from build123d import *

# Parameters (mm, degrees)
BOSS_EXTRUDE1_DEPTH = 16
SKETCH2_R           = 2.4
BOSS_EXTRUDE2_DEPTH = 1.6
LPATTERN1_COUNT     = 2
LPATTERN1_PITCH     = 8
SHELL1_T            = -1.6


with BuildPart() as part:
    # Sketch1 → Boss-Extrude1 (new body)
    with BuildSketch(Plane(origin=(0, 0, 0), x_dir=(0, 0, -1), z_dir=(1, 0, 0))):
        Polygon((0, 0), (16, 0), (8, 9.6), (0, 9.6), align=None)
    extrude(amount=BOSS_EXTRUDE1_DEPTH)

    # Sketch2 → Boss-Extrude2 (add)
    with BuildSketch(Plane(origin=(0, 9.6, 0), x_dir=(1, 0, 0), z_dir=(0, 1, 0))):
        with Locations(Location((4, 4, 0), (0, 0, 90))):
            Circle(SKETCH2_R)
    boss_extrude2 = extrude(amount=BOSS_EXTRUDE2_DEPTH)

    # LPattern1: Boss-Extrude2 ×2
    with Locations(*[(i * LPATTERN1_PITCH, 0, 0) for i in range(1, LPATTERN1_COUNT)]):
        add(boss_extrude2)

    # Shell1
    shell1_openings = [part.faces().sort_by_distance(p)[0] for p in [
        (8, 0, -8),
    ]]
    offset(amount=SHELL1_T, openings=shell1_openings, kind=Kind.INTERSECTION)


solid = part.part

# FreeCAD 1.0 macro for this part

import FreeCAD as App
import Part
import Sketcher
from FreeCAD import Vector
Q = App.Units.Quantity


def faces_at(feature, points):
    """Names of the faces that lie closest to the given points."""
    faces = feature.Shape.Faces
    near = lambda p: min(range(len(faces)), key=lambda i: faces[i].distToShape(Part.Vertex(*p))[0])
    return sorted({f"Face{near(p) + 1}" for p in points})

doc = App.newDocument("Part")
params = doc.addObject("Spreadsheet::Sheet", "Params")
for row, (alias, value) in enumerate([
    ("sketch1_height", "16 mm"),
    ("sketch1_height2", "8 mm"),
    ("sketch1_width", "9.6 mm"),
    ("pad1_length", "16 mm"),
    ("sketch2_diameter", "4.8 mm"),
    ("pad2_length", "1.6 mm"),
    ("linearpattern_pitch", "8 mm"),
    ("thickness_wall", "1.6 mm"),
], start=1):
    params.set(f"A{row}", alias)
    params.set(f"B{row}", "=" + value)
    params.setAlias(f"B{row}", alias)

body = doc.addObject("PartDesign::Body", "Body")

# Sketch on YZ plane
sketch1 = body.newObject("Sketcher::SketchObject", "Sketch")
sketch1.AttachmentSupport = (doc.getObject("YZ_Plane"), [""])
sketch1.MapMode = "FlatFace"
sketch1.addGeometry(Part.LineSegment(Vector(0, 0, 0), Vector(0, -16, 0)), False)
sketch1.addGeometry(Part.LineSegment(Vector(0, -16, 0), Vector(9.6, -8, 0)), False)
sketch1.addGeometry(Part.LineSegment(Vector(9.6, -8, 0), Vector(9.6, 0, 0)), False)
sketch1.addGeometry(Part.LineSegment(Vector(9.6, 0, 0), Vector(0, 0, 0)), False)
sketch1.addConstraint(Sketcher.Constraint("Coincident", 0, 2, 1, 1))
sketch1.addConstraint(Sketcher.Constraint("Coincident", 1, 2, 2, 1))
sketch1.addConstraint(Sketcher.Constraint("Coincident", 2, 2, 3, 1))
sketch1.addConstraint(Sketcher.Constraint("Coincident", 3, 2, 0, 1))
sketch1.addConstraint(Sketcher.Constraint("Vertical", 0))
sketch1.addConstraint(Sketcher.Constraint("Vertical", 2))
sketch1.addConstraint(Sketcher.Constraint("Horizontal", 3))
sketch1.addConstraint(Sketcher.Constraint("Coincident", 3, 2, -1, 1))
sketch1.addConstraint(Sketcher.Constraint("DistanceY", 0, 2, 0, 1, Q("16 mm")))
sketch1.addConstraint(Sketcher.Constraint("DistanceY", 2, 1, 2, 2, Q("8 mm")))
sketch1.addConstraint(Sketcher.Constraint("DistanceX", 3, 2, 3, 1, Q("9.6 mm")))
sketch1.setExpression("Constraints[8]", "Params.sketch1_height")
sketch1.setExpression("Constraints[9]", "Params.sketch1_height2")
sketch1.setExpression("Constraints[10]", "Params.sketch1_width")
pad1 = body.newObject("PartDesign::Pad", "Pad")
pad1.Profile = sketch1
pad1.setExpression("Length", "Params.pad1_length")

# Sketch on XZ plane
sketch2 = body.newObject("Sketcher::SketchObject", "Sketch001")
sketch2.AttachmentSupport = (doc.getObject("XZ_Plane"), [""])
sketch2.MapMode = "FlatFace"
sketch2.AttachmentOffset = App.Placement(Vector(0, 0, -9.6), App.Rotation())
sketch2.addGeometry(Part.Circle(Vector(4, -4, 0), Vector(0, 0, 1), 2.4), False)
sketch2.addConstraint(Sketcher.Constraint("Diameter", 0, Q("4.8 mm")))
sketch2.addConstraint(Sketcher.Constraint("DistanceX", -1, 1, 0, 3, Q("4 mm")))
sketch2.addConstraint(Sketcher.Constraint("DistanceY", 0, 3, -1, 1, Q("4 mm")))
sketch2.setExpression("Constraints[0]", "Params.sketch2_diameter")
pad2 = body.newObject("PartDesign::Pad", "Pad001")
pad2.Profile = sketch2
pad2.setExpression("Length", "Params.pad2_length")
pad2.Reversed = True
doc.recompute()

linearpattern = body.newObject("PartDesign::LinearPattern", "LinearPattern")
linearpattern.Originals = [pad2]
linearpattern.Direction = (doc.getObject("X_Axis"), [""])
linearpattern.Mode = "offset"
linearpattern.setExpression("Offset", "Params.linearpattern_pitch")
linearpattern.Occurrences = 2
body.Tip = linearpattern
doc.recompute()

thickness = body.newObject("PartDesign::Thickness", "Thickness")
thickness.Base = (linearpattern, faces_at(linearpattern, [(8, 0, -8)]))
thickness.setExpression("Value", "Params.thickness_wall")
thickness.Reversed = True
thickness.Join = "Intersection"

doc.recompute()
